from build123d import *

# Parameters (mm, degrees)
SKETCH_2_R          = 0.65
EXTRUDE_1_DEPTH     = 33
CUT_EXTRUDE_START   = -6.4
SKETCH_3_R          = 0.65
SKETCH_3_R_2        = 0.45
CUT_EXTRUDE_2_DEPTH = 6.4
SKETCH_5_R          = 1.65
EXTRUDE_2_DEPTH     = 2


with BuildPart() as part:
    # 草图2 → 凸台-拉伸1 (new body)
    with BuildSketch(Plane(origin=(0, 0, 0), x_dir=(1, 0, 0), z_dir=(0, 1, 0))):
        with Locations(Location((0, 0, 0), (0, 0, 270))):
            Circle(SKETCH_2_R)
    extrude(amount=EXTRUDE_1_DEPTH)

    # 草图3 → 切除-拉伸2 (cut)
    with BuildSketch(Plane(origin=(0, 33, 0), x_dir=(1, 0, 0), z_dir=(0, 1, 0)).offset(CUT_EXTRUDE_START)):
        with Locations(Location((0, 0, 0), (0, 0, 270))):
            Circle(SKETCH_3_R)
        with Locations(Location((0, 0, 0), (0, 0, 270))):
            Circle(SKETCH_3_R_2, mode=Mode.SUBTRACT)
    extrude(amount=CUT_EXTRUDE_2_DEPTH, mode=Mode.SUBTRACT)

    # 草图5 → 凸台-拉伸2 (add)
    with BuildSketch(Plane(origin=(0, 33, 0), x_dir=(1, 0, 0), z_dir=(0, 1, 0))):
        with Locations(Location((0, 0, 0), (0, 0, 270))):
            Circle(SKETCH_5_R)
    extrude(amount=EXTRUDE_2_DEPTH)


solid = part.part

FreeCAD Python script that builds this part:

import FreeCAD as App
import Part
import Sketcher
from FreeCAD import Vector

doc = App.newDocument("Part")
params = doc.addObject("Spreadsheet::Sheet", "Params")
for row, (alias, value) in enumerate([
    ("sketch1_diameter", "1.3 mm"),
    ("pad1_length", "33 mm"),
    ("sketch2_diameter", "1.3 mm"),
    ("sketch2_diameter2", "0.9 mm"),
    ("pocket1_length", "6.4 mm"),
    ("sketch3_diameter", "3.3 mm"),
    ("pad2_length", "2 mm"),
], start=1):
    params.set(f"A{row}", alias)
    params.set(f"B{row}", "=" + value)
    params.setAlias(f"B{row}", alias)

body = doc.addObject("PartDesign::Body", "Body")

sketch1 = body.newObject("Sketcher::SketchObject", "Sketch")
sketch1.AttachmentSupport = (doc.getObject("XZ_Plane"), [""])
sketch1.MapMode = "FlatFace"
sketch1.addGeometry(Part.Circle(Vector(0, 0, 0), Vector(0, 0, 1), 0.7), False)
sketch1.addConstraint(Sketcher.Constraint("Coincident", 0, 3, -1, 1))
sketch1.addConstraint(Sketcher.Constraint("Diameter", 0, 1.3))
sketch1.setExpression("Constraints[1]", "Params.sketch1_diameter")
pad1 = body.newObject("PartDesign::Pad", "Pad")
pad1.Profile = sketch1
pad1.setExpression("Length", "Params.pad1_length")
pad1.Reversed = True

sketch2 = body.newObject("Sketcher::SketchObject", "Sketch001")
sketch2.AttachmentSupport = (doc.getObject("XZ_Plane"), [""])
sketch2.MapMode = "FlatFace"
sketch2.AttachmentOffset = App.Placement(Vector(0, 0, -26.6), App.Rotation())
sketch2.addGeometry(Part.Circle(Vector(0, 0, 0), Vector(0, 0, 1), 0.65), False)
sketch2.addGeometry(Part.Circle(Vector(0, 0, 0), Vector(0, 0, 1), 0.45), False)
sketch2.addConstraint(Sketcher.Constraint("Coincident", 0, 3, -1, 1))
sketch2.addConstraint(Sketcher.Constraint("Coincident", 1, 3, -1, 1))
sketch2.addConstraint(Sketcher.Constraint("Diameter", 0, 1.3))
sketch2.addConstraint(Sketcher.Constraint("Diameter", 1, 0.9))
sketch2.setExpression("Constraints[2]", "Params.sketch2_diameter")
sketch2.setExpression("Constraints[3]", "Params.sketch2_diameter2")
pocket1 = body.newObject("PartDesign::Pocket", "Pocket")
pocket1.Profile = sketch2
pocket1.setExpression("Length", "Params.pocket1_length")

sketch3 = body.newObject("Sketcher::SketchObject", "Sketch002")
sketch3.AttachmentSupport = (doc.getObject("XZ_Plane"), [""])
sketch3.MapMode = "FlatFace"
sketch3.AttachmentOffset = App.Placement(Vector(0, 0, -33), App.Rotation())
sketch3.addGeometry(Part.Circle(Vector(0, 0, 0), Vector(0, 0, 1), 1.6), False)
sketch3.addConstraint(Sketcher.Constraint("Coincident", 0, 3, -1, 1))
sketch3.addConstraint(Sketcher.Constraint("Diameter", 0, 3.3))
sketch3.setExpression("Constraints[1]", "Params.sketch3_diameter")
pad2 = body.newObject("PartDesign::Pad", "Pad001")
pad2.Profile = sketch3
pad2.setExpression("Length", "Params.pad2_length")
pad2.Reversed = True

doc.recompute()
